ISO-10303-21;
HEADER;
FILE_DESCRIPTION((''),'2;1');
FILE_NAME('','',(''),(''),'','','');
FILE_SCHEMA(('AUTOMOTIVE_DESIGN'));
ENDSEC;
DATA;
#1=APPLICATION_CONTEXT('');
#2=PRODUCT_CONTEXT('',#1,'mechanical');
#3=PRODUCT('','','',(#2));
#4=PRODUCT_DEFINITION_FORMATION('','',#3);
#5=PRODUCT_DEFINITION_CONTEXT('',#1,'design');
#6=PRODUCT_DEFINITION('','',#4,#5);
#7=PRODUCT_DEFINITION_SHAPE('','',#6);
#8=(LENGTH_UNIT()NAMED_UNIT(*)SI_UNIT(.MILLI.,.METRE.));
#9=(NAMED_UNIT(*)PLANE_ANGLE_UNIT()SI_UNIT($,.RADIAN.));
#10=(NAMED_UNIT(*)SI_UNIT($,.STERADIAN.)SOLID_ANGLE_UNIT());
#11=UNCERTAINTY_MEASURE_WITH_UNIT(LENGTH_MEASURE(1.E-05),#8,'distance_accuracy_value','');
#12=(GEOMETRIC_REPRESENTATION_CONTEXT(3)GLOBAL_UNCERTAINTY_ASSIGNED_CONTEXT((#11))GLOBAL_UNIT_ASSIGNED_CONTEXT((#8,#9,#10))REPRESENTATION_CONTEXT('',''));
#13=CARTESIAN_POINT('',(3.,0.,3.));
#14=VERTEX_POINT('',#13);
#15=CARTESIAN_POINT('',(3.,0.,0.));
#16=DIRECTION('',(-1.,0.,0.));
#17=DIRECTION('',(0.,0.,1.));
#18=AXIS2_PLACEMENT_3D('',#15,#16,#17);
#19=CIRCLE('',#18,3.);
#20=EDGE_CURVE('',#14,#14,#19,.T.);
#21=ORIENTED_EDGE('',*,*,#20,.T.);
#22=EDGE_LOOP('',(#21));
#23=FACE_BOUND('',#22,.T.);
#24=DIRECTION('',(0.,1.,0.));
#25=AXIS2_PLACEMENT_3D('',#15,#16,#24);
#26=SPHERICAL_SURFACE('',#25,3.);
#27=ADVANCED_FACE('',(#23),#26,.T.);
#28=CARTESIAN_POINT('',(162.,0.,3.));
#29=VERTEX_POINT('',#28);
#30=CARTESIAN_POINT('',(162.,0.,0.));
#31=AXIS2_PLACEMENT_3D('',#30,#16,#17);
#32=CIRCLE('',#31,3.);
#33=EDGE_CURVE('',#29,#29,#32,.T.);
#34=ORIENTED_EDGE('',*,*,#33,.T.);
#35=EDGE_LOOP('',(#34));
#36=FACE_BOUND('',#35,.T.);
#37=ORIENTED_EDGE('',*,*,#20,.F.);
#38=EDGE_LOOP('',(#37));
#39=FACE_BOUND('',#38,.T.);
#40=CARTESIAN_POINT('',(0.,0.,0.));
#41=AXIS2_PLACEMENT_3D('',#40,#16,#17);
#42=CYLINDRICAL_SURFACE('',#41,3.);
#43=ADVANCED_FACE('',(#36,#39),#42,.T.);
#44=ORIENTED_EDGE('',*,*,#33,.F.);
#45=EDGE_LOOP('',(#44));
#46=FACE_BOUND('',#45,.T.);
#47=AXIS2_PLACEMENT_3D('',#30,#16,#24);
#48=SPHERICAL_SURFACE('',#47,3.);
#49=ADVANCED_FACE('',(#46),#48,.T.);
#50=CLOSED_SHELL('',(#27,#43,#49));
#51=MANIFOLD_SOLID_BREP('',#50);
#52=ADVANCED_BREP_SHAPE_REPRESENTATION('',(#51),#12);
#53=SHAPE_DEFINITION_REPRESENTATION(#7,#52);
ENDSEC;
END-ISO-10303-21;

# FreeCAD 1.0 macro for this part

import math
import FreeCAD as App
import Part
import Sketcher
Q = App.Units.Quantity

doc = App.newDocument("Part")
body = doc.addObject("PartDesign::Body", "Body")

# Sketch on XY plane
sketch1 = body.newObject("Sketcher::SketchObject", "Sketch")
sketch1.AttachmentSupport = (doc.getObject("XY_Plane"), [""])
sketch1.MapMode = "FlatFace"
sketch1.addGeometry([
    Part.LineSegment(App.Vector(162, 3, 0), App.Vector(3, 3, 0)),
    Part.ArcOfCircle(Part.Circle(App.Vector(3, 0, 0), App.Vector(0, 0, 1), 3), math.radians(90), math.radians(180)),
    Part.LineSegment(App.Vector(0, 0, 0), App.Vector(165, 0, 0)),
    Part.ArcOfCircle(Part.Circle(App.Vector(162, 0, 0), App.Vector(0, 0, 1), 3), math.radians(0), math.radians(90)),
], False)
sketch1.addConstraint([
    Sketcher.Constraint("Tangent", 0, 2, 1, 1),
    Sketcher.Constraint("Coincident", 1, 2, 2, 1),
    Sketcher.Constraint("Coincident", 2, 2, 3, 1),
    Sketcher.Constraint("Tangent", 3, 2, 0, 1),
    Sketcher.Constraint("Horizontal", 0),
    Sketcher.Constraint("Horizontal", 2),
    Sketcher.Constraint("Coincident", 1, 2, -1, 1),
    Sketcher.Constraint("Equal", 1, 3),
    Sketcher.Constraint("PointOnObject", 1, 3, -1),
    Sketcher.Constraint("Radius", 1, Q("3 mm")),
    Sketcher.Constraint("DistanceX", 0, 2, 0, 1, Q("159 mm")),
])
revolution = body.newObject("PartDesign::Revolution", "Revolution")
revolution.Profile = sketch1
revolution.ReferenceAxis = (sketch1, ["H_Axis"])
revolution.Angle = 360

doc.recompute()
